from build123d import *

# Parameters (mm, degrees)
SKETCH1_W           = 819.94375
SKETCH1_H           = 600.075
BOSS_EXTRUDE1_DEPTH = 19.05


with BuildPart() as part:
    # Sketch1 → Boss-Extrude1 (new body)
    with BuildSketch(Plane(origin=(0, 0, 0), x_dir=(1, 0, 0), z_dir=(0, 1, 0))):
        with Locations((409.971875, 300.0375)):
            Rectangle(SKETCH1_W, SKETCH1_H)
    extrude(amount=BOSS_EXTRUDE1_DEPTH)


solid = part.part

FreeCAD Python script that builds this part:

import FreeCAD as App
import Part
import Sketcher

V = App.Vector
Q = App.Units.Quantity


def add_polygon(sketch, points):
    """Adds a closed chain of lines whose ends are joined by coincident constraints."""
    first, n = sketch.GeometryCount, len(points)
    for a, b in zip(points, points[1:] + points[:1]):
        sketch.addGeometry(Part.LineSegment(App.Vector(*a, 0), App.Vector(*b, 0)), False)
    for i in range(n):
        sketch.addConstraint(Sketcher.Constraint("Coincident", first + i, 2, first + (i + 1) % n, 1))

doc = App.newDocument("Part")
body = doc.addObject("PartDesign::Body", "Body")

# Sketch on XZ plane
sketch1 = body.newObject("Sketcher::SketchObject", "Sketch")
sketch1.AttachmentSupport = (doc.getObject("XZ_Plane"), [""])
sketch1.MapMode = "FlatFace"
add_polygon(sketch1, [(0, -600.075), (0, 0), (819.94375, 0), (819.94375, -600.075)])  # lines 0-3
sketch1.addConstraint(Sketcher.Constraint("Vertical", 0))
sketch1.addConstraint(Sketcher.Constraint("Horizontal", 1))
sketch1.addConstraint(Sketcher.Constraint("Vertical", 2))
sketch1.addConstraint(Sketcher.Constraint("Horizontal", 3))
sketch1.addConstraint(Sketcher.Constraint("Coincident", 0, 2, -1, 1))
sketch1.addConstraint(Sketcher.Constraint("DistanceX", 1, 1, 1, 2, Q("32.28125 in")))
sketch1.addConstraint(Sketcher.Constraint("DistanceY", 0, 1, 0, 2, Q("23.625 in")))
pad1 = body.newObject("PartDesign::Pad", "Pad")
pad1.Profile = sketch1
pad1.Length = Q("0.75 in")
pad1.Reversed = True

doc.recompute()
